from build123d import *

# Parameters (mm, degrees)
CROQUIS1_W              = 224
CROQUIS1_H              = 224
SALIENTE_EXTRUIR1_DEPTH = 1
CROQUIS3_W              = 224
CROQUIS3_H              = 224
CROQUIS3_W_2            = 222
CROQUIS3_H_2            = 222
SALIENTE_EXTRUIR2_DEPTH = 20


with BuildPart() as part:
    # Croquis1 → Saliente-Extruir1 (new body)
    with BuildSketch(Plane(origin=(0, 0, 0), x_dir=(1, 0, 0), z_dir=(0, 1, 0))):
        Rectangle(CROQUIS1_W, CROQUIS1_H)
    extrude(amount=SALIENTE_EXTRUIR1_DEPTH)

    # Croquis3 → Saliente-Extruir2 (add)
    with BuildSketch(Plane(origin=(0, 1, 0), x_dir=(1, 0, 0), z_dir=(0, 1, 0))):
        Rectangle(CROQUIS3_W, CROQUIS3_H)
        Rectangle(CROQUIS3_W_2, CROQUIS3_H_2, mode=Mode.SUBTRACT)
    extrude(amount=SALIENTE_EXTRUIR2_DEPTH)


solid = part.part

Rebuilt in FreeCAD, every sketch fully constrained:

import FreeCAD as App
import Part
import Sketcher

doc = App.newDocument("Part")
body = doc.addObject("PartDesign::Body", "Body")

# Sketch on XZ plane
sketch1 = body.newObject("Sketcher::SketchObject", "Sketch")
sketch1.AttachmentSupport = (doc.getObject("XZ_Plane"), [""])
sketch1.MapMode = "FlatFace"
sketch1.addGeometry(Part.LineSegment(App.Vector(-112, -112, 0), App.Vector(-112, 112, 0)), False)
sketch1.addGeometry(Part.LineSegment(App.Vector(-112, 112, 0), App.Vector(112, 112, 0)), False)
sketch1.addGeometry(Part.LineSegment(App.Vector(112, 112, 0), App.Vector(112, -112, 0)), False)
sketch1.addGeometry(Part.LineSegment(App.Vector(112, -112, 0), App.Vector(-112, -112, 0)), False)
sketch1.addConstraint(Sketcher.Constraint("Coincident", 0, 2, 1, 1))
sketch1.addConstraint(Sketcher.Constraint("Coincident", 1, 2, 2, 1))
sketch1.addConstraint(Sketcher.Constraint("Coincident", 2, 2, 3, 1))
sketch1.addConstraint(Sketcher.Constraint("Coincident", 3, 2, 0, 1))
sketch1.addConstraint(Sketcher.Constraint("Vertical", 0))
sketch1.addConstraint(Sketcher.Constraint("Horizontal", 1))
sketch1.addConstraint(Sketcher.Constraint("Vertical", 2))
sketch1.addConstraint(Sketcher.Constraint("Horizontal", 3))
sketch1.addConstraint(Sketcher.Constraint("Symmetric", 0, 2, 2, 2, -1, 1))
sketch1.addConstraint(Sketcher.Constraint("Equal", 3, 0))
sketch1.addConstraint(Sketcher.Constraint("DistanceX", 1, 1, 1, 2, 224.0))
pad1 = body.newObject("PartDesign::Pad", "Pad")
pad1.Profile = sketch1
pad1.Length = 1
pad1.Reversed = True

# Sketch on XZ plane
sketch2 = body.newObject("Sketcher::SketchObject", "Sketch001")
sketch2.AttachmentSupport = (doc.getObject("XZ_Plane"), [""])
sketch2.MapMode = "FlatFace"
sketch2.AttachmentOffset = App.Placement(App.Vector(0, 0, -1), App.Rotation())
sketch2.addGeometry(Part.LineSegment(App.Vector(-112, -112, 0), App.Vector(-112, 112, 0)), False)
sketch2.addGeometry(Part.LineSegment(App.Vector(-112, 112, 0), App.Vector(112, 112, 0)), False)
sketch2.addGeometry(Part.LineSegment(App.Vector(112, 112, 0), App.Vector(112, -112, 0)), False)
sketch2.addGeometry(Part.LineSegment(App.Vector(112, -112, 0), App.Vector(-112, -112, 0)), False)
sketch2.addGeometry(Part.LineSegment(App.Vector(111, 111, 0), App.Vector(-111, 111, 0)), False)
sketch2.addGeometry(Part.LineSegment(App.Vector(-111, 111, 0), App.Vector(-111, -111, 0)), False)
sketch2.addGeometry(Part.LineSegment(App.Vector(-111, -111, 0), App.Vector(111, -111, 0)), False)
sketch2.addGeometry(Part.LineSegment(App.Vector(111, -111, 0), App.Vector(111, 111, 0)), False)
sketch2.addConstraint(Sketcher.Constraint("Coincident", 0, 2, 1, 1))
sketch2.addConstraint(Sketcher.Constraint("Coincident", 1, 2, 2, 1))
sketch2.addConstraint(Sketcher.Constraint("Coincident", 2, 2, 3, 1))
sketch2.addConstraint(Sketcher.Constraint("Coincident", 3, 2, 0, 1))
sketch2.addConstraint(Sketcher.Constraint("Coincident", 4, 2, 5, 1))
sketch2.addConstraint(Sketcher.Constraint("Coincident", 5, 2, 6, 1))
sketch2.addConstraint(Sketcher.Constraint("Coincident", 6, 2, 7, 1))
sketch2.addConstraint(Sketcher.Constraint("Coincident", 7, 2, 4, 1))
sketch2.addConstraint(Sketcher.Constraint("Vertical", 0))
sketch2.addConstraint(Sketcher.Constraint("Horizontal", 1))
sketch2.addConstraint(Sketcher.Constraint("Vertical", 2))
sketch2.addConstraint(Sketcher.Constraint("Horizontal", 3))
sketch2.addConstraint(Sketcher.Constraint("Horizontal", 4))
sketch2.addConstraint(Sketcher.Constraint("Vertical", 5))
sketch2.addConstraint(Sketcher.Constraint("Horizontal", 6))
sketch2.addConstraint(Sketcher.Constraint("Vertical", 7))
sketch2.addConstraint(Sketcher.Constraint("Symmetric", 0, 2, 2, 2, -1, 1))
sketch2.addConstraint(Sketcher.Constraint("Symmetric", 4, 2, 6, 2, -1, 1))
sketch2.addConstraint(Sketcher.Constraint("Equal", 3, 0))
sketch2.addConstraint(Sketcher.Constraint("Equal", 6, 5))
sketch2.addConstraint(Sketcher.Constraint("DistanceX", 1, 1, 1, 2, 224.0))
sketch2.addConstraint(Sketcher.Constraint("DistanceX", 4, 2, 4, 1, 222.0))
pad2 = body.newObject("PartDesign::Pad", "Pad001")
pad2.Profile = sketch2
pad2.Length = 20
pad2.Reversed = True

doc.recompute()
